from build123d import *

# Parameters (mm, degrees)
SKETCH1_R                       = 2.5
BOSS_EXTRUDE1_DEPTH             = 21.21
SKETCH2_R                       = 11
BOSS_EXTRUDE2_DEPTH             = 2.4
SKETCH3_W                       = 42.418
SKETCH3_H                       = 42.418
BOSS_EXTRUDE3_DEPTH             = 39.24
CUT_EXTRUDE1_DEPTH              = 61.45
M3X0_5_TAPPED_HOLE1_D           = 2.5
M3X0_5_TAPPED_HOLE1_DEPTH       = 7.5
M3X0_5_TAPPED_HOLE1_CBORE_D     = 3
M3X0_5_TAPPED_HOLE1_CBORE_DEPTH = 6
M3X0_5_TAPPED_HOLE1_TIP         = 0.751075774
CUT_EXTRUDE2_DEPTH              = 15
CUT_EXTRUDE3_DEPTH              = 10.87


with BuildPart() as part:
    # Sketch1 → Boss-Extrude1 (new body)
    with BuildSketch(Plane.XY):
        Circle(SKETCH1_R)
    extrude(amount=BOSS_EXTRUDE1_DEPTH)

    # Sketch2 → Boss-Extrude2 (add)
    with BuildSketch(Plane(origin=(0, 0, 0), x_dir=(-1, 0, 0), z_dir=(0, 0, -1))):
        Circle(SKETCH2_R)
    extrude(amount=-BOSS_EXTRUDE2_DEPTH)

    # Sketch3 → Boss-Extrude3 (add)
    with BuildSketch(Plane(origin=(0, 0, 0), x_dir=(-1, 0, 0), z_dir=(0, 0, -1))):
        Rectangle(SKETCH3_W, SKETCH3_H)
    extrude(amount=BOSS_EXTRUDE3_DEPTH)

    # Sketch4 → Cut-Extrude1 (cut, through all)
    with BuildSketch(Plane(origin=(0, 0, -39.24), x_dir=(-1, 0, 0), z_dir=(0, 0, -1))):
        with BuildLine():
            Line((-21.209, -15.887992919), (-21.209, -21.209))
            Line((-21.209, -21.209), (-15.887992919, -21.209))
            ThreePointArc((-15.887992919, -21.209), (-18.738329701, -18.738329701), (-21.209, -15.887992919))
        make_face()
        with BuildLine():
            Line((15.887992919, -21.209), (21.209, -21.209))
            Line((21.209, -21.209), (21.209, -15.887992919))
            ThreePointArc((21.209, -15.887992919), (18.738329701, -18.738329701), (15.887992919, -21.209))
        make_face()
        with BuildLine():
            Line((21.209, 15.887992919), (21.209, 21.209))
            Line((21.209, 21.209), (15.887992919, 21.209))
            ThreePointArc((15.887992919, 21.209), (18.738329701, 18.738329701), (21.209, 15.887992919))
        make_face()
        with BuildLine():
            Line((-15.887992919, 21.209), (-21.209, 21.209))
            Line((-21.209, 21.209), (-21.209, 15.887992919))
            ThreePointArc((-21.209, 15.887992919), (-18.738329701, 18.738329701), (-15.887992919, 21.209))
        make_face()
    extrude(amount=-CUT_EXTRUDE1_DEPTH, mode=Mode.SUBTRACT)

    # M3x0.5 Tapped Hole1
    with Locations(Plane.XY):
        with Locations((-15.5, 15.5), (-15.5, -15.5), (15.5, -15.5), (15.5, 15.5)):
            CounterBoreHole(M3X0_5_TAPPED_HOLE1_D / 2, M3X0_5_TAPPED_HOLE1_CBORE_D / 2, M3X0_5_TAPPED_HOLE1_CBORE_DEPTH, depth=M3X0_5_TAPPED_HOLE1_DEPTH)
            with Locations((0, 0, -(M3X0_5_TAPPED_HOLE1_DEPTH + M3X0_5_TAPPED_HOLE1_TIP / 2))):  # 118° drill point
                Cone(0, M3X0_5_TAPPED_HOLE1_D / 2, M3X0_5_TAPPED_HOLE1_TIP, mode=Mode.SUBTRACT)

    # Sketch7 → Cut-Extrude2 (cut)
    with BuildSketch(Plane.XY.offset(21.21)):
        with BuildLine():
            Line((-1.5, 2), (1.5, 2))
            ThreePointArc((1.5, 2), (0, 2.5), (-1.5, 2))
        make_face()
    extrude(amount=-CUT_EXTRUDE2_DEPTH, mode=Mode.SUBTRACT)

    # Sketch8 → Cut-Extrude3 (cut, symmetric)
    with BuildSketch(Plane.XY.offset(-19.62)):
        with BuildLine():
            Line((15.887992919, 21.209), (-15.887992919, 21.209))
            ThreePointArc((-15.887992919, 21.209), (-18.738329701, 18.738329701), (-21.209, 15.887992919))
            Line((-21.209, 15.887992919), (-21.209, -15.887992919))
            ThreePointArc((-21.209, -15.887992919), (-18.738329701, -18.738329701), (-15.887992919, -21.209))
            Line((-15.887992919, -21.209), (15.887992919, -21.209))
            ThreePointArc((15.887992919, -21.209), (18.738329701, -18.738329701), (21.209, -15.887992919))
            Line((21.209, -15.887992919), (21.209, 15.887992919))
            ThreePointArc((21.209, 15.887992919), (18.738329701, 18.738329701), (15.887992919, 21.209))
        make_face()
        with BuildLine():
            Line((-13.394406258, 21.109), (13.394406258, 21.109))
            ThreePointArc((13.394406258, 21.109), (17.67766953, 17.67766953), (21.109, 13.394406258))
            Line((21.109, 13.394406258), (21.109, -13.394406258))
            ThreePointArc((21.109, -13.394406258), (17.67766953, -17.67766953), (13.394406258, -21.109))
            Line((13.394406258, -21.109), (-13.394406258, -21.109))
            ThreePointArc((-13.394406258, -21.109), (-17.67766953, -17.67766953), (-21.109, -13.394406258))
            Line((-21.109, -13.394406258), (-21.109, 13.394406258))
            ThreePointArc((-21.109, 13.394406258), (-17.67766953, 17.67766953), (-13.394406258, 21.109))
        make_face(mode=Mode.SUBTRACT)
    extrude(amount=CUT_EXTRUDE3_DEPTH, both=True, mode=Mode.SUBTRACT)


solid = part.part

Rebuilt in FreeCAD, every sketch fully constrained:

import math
import FreeCAD as App
import Part
import Sketcher

V = App.Vector

doc = App.newDocument("Part")
body = doc.addObject("PartDesign::Body", "Body")

# Sketch on XY plane
sketch1 = doc.addObject("Sketcher::SketchObject", "Sketch")
body.addObject(sketch1)
sketch1.AttachmentSupport = (doc.XY_Plane, [""])
sketch1.MapMode = "FlatFace"
sketch1.addGeometry(Part.Circle(V(0, 0, 0), V(0, 0, 1), 2.5), False)
sketch1.addConstraint(Sketcher.Constraint("Coincident", 0, 3, -1, 1))
sketch1.addConstraint(Sketcher.Constraint("Diameter", 0, 5.0))
pad1 = doc.addObject("PartDesign::Pad", "Pad")
body.addObject(pad1)
pad1.Profile = sketch1
pad1.Length = 21.21

# Sketch on XY plane
sketch2 = doc.addObject("Sketcher::SketchObject", "Sketch001")
body.addObject(sketch2)
sketch2.AttachmentSupport = (doc.XY_Plane, [""])
sketch2.MapMode = "FlatFace"
sketch2.addGeometry(Part.Circle(V(0, 0, 0), V(0, 0, 1), 11), False)
sketch2.addConstraint(Sketcher.Constraint("Coincident", 0, 3, -1, 1))
sketch2.addConstraint(Sketcher.Constraint("Diameter", 0, 22.0))
pad2 = doc.addObject("PartDesign::Pad", "Pad001")
body.addObject(pad2)
pad2.Profile = sketch2
pad2.Length = 2.4

# Sketch on XY plane
sketch3 = doc.addObject("Sketcher::SketchObject", "Sketch002")
body.addObject(sketch3)
sketch3.AttachmentSupport = (doc.XY_Plane, [""])
sketch3.MapMode = "FlatFace"
sketch3.addGeometry(Part.LineSegment(V(21, 21, 0), V(21, -21, 0)), False)
sketch3.addGeometry(Part.LineSegment(V(21, -21, 0), V(-21, -21, 0)), False)
sketch3.addGeometry(Part.LineSegment(V(-21, -21, 0), V(-21, 21, 0)), False)
sketch3.addGeometry(Part.LineSegment(V(-21, 21, 0), V(21, 21, 0)), False)
sketch3.addConstraint(Sketcher.Constraint("Coincident", 0, 2, 1, 1))
sketch3.addConstraint(Sketcher.Constraint("Coincident", 1, 2, 2, 1))
sketch3.addConstraint(Sketcher.Constraint("Coincident", 2, 2, 3, 1))
sketch3.addConstraint(Sketcher.Constraint("Coincident", 3, 2, 0, 1))
sketch3.addConstraint(Sketcher.Constraint("Vertical", 0))
sketch3.addConstraint(Sketcher.Constraint("Horizontal", 1))
sketch3.addConstraint(Sketcher.Constraint("Vertical", 2))
sketch3.addConstraint(Sketcher.Constraint("Horizontal", 3))
sketch3.addConstraint(Sketcher.Constraint("Symmetric", 0, 2, 2, 2, -1, 1))
sketch3.addConstraint(Sketcher.Constraint("Equal", 3, 0))
sketch3.addConstraint(Sketcher.Constraint("DistanceX", 1, 2, 1, 1, 42.418))
pad3 = doc.addObject("PartDesign::Pad", "Pad002")
body.addObject(pad3)
pad3.Profile = sketch3
pad3.Length = 39.24
pad3.Reversed = True

# Sketch on XY plane
sketch4 = doc.addObject("Sketcher::SketchObject", "Sketch003")
body.addObject(sketch4)
sketch4.AttachmentSupport = (doc.XY_Plane, [""])
sketch4.MapMode = "FlatFace"
sketch4.AttachmentOffset = App.Placement(V(0, 0, -39.24), App.Rotation())
sketch4.addGeometry(Part.LineSegment(V(21, -16, 0), V(21, -21, 0)), False)
sketch4.addGeometry(Part.LineSegment(V(21, -21, 0), V(16, -21, 0)), False)
sketch4.addGeometry(Part.ArcOfCircle(Part.Circle(V(0, 0, 0), V(0, 0, 1), 27), math.radians(-53.16), math.radians(-36.84)), False)
sketch4.addGeometry(Part.LineSegment(V(-16, -21, 0), V(-21, -21, 0)), False)
sketch4.addGeometry(Part.LineSegment(V(-21, -21, 0), V(-21, -16, 0)), False)
sketch4.addGeometry(Part.ArcOfCircle(Part.Circle(V(0, 0, 0), V(0, 0, 1), 27), math.radians(-143.16), math.radians(-126.84)), False)
sketch4.addGeometry(Part.LineSegment(V(-21, 16, 0), V(-21, 21, 0)), False)
sketch4.addGeometry(Part.LineSegment(V(-21, 21, 0), V(-16, 21, 0)), False)
sketch4.addGeometry(Part.ArcOfCircle(Part.Circle(V(0, 0, 0), V(0, 0, 1), 27), math.radians(126.84), math.radians(143.16)), False)
sketch4.addGeometry(Part.LineSegment(V(16, 21, 0), V(21, 21, 0)), False)
sketch4.addGeometry(Part.LineSegment(V(21, 21, 0), V(21, 16, 0)), False)
sketch4.addGeometry(Part.ArcOfCircle(Part.Circle(V(0, 0, 0), V(0, 0, 1), 27), math.radians(36.84), math.radians(53.16)), False)
sketch4.addConstraint(Sketcher.Constraint("Coincident", 0, 2, 1, 1))
sketch4.addConstraint(Sketcher.Constraint("Coincident", 1, 2, 2, 1))
sketch4.addConstraint(Sketcher.Constraint("Coincident", 2, 2, 0, 1))
sketch4.addConstraint(Sketcher.Constraint("Coincident", 3, 2, 4, 1))
sketch4.addConstraint(Sketcher.Constraint("Coincident", 4, 2, 5, 1))
sketch4.addConstraint(Sketcher.Constraint("Coincident", 5, 2, 3, 1))
sketch4.addConstraint(Sketcher.Constraint("Coincident", 6, 2, 7, 1))
sketch4.addConstraint(Sketcher.Constraint("Coincident", 7, 2, 8, 1))
sketch4.addConstraint(Sketcher.Constraint("Coincident", 8, 2, 6, 1))
sketch4.addConstraint(Sketcher.Constraint("Coincident", 9, 2, 10, 1))
sketch4.addConstraint(Sketcher.Constraint("Coincident", 10, 2, 11, 1))
sketch4.addConstraint(Sketcher.Constraint("Coincident", 11, 2, 9, 1))
sketch4.addConstraint(Sketcher.Constraint("Vertical", 0))
sketch4.addConstraint(Sketcher.Constraint("Horizontal", 1))
sketch4.addConstraint(Sketcher.Constraint("Horizontal", 3))
sketch4.addConstraint(Sketcher.Constraint("Vertical", 4))
sketch4.addConstraint(Sketcher.Constraint("Vertical", 6))
sketch4.addConstraint(Sketcher.Constraint("Horizontal", 7))
sketch4.addConstraint(Sketcher.Constraint("Horizontal", 9))
sketch4.addConstraint(Sketcher.Constraint("Vertical", 10))
sketch4.addConstraint(Sketcher.Constraint("Coincident", 2, 3, -1, 1))
sketch4.addConstraint(Sketcher.Constraint("Coincident", 5, 3, -1, 1))
sketch4.addConstraint(Sketcher.Constraint("Coincident", 8, 3, -1, 1))
sketch4.addConstraint(Sketcher.Constraint("Coincident", 11, 3, -1, 1))
sketch4.addConstraint(Sketcher.Constraint("Equal", 2, 5))
sketch4.addConstraint(Sketcher.Constraint("Equal", 5, 8))
sketch4.addConstraint(Sketcher.Constraint("Equal", 8, 11))
sketch4.addConstraint(Sketcher.Constraint("Symmetric", 0, 2, 6, 2, -1, 1))
sketch4.addConstraint(Sketcher.Constraint("Symmetric", 3, 2, 9, 2, -1, 1))
sketch4.addConstraint(Sketcher.Constraint("Symmetric", 0, 2, 3, 2, -2))
sketch4.addConstraint(Sketcher.Constraint("Equal", 9, 0))
sketch4.addConstraint(Sketcher.Constraint("Radius", 2, 26.5))
sketch4.addConstraint(Sketcher.Constraint("DistanceX", -1, 1, 0, 2, 21.209))
pocket1 = doc.addObject("PartDesign::Pocket", "Pocket")
body.addObject(pocket1)
pocket1.Profile = sketch4
pocket1.Type = "ThroughAll"
pocket1.Reversed = True

# Sketch on XY plane
sketch5 = doc.addObject("Sketcher::SketchObject", "Sketch004")
body.addObject(sketch5)
sketch5.AttachmentSupport = (doc.XY_Plane, [""])
sketch5.MapMode = "FlatFace"
sketch5.addGeometry(Part.Circle(V(-15.5, 15.5, 0), V(0, 0, 1), 1.2), False)
sketch5.addGeometry(Part.Circle(V(-15.5, -15.5, 0), V(0, 0, 1), 1.2), False)
sketch5.addGeometry(Part.Circle(V(15.5, -15.5, 0), V(0, 0, 1), 1.2), False)
sketch5.addGeometry(Part.Circle(V(15.5, 15.5, 0), V(0, 0, 1), 1.2), False)
sketch5.addConstraint(Sketcher.Constraint("Equal", 0, 1))
sketch5.addConstraint(Sketcher.Constraint("Equal", 1, 2))
sketch5.addConstraint(Sketcher.Constraint("Equal", 2, 3))
sketch5.addConstraint(Sketcher.Constraint("Symmetric", 0, 3, 2, 3, -1, 1))
sketch5.addConstraint(Sketcher.Constraint("Symmetric", 1, 3, 3, 3, -1, 1))
sketch5.addConstraint(Sketcher.Constraint("Symmetric", 1, 3, 2, 3, -2))
sketch5.addConstraint(Sketcher.Constraint("Diameter", 0, 2.5))
sketch5.addConstraint(Sketcher.Constraint("DistanceY", 1, 3, 0, 3, 31.0))
sketch5.addConstraint(Sketcher.Constraint("DistanceX", 1, 3, 2, 3, 31.0))
doc.recompute()
hole = doc.addObject("PartDesign::Hole", "Hole")
body.addObject(hole)
hole.Profile = sketch5
hole.ThreadType = "None"
hole.Diameter = 2.5
hole.DepthType = "Dimension"
hole.Depth = 7.5
hole.DrillPoint = "Angled"
hole.DrillPointAngle = 118
hole.HoleCutType = "Counterbore"
hole.HoleCutDiameter = 3
hole.HoleCutDepth = 6

# Sketch on XY plane
sketch6 = doc.addObject("Sketcher::SketchObject", "Sketch005")
body.addObject(sketch6)
sketch6.AttachmentSupport = (doc.XY_Plane, [""])
sketch6.MapMode = "FlatFace"
sketch6.AttachmentOffset = App.Placement(V(0, 0, 21.21), App.Rotation())
sketch6.addGeometry(Part.LineSegment(V(-1.5, 2, 0), V(1.5, 2, 0)), False)
sketch6.addGeometry(Part.ArcOfCircle(Part.Circle(V(0, 0, 0), V(0, 0, 1), 2.5), math.radians(53), math.radians(127)), False)
sketch6.addConstraint(Sketcher.Constraint("Coincident", 0, 1, 1, 2))
sketch6.addConstraint(Sketcher.Constraint("Coincident", 1, 1, 0, 2))
sketch6.addConstraint(Sketcher.Constraint("Horizontal", 0))
sketch6.addConstraint(Sketcher.Constraint("Coincident", 1, 3, -1, 1))
sketch6.addConstraint(Sketcher.Constraint("Radius", 1, 2.5))
sketch6.addConstraint(Sketcher.Constraint("DistanceX", 0, 1, 0, 2, 3.0))
pocket2 = doc.addObject("PartDesign::Pocket", "Pocket001")
body.addObject(pocket2)
pocket2.Profile = sketch6
pocket2.Length = 15

# Sketch on XY plane
sketch7 = doc.addObject("Sketcher::SketchObject", "Sketch006")
body.addObject(sketch7)
sketch7.AttachmentSupport = (doc.XY_Plane, [""])
sketch7.MapMode = "FlatFace"
sketch7.AttachmentOffset = App.Placement(V(0, 0, -19.62), App.Rotation())
sketch7.addGeometry(Part.LineSegment(V(16, 21, 0), V(-16, 21, 0)), False)
sketch7.addGeometry(Part.ArcOfCircle(Part.Circle(V(0, 0, 0), V(0, 0, 1), 27), math.radians(126.84), math.radians(143.16)), False)
sketch7.addGeometry(Part.LineSegment(V(-21, 16, 0), V(-21, -16, 0)), False)
sketch7.addGeometry(Part.ArcOfCircle(Part.Circle(V(0, 0, 0), V(0, 0, 1), 27), math.radians(-143.16), math.radians(-126.84)), False)
sketch7.addGeometry(Part.LineSegment(V(-16, -21, 0), V(16, -21, 0)), False)
sketch7.addGeometry(Part.ArcOfCircle(Part.Circle(V(0, 0, 0), V(0, 0, 1), 27), math.radians(-53.16), math.radians(-36.84)), False)
sketch7.addGeometry(Part.LineSegment(V(21, -16, 0), V(21, 16, 0)), False)
sketch7.addGeometry(Part.ArcOfCircle(Part.Circle(V(0, 0, 0), V(0, 0, 1), 27), math.radians(36.84), math.radians(53.16)), False)
sketch7.addGeometry(Part.ArcOfCircle(Part.Circle(V(0, 0, 0), V(0, 0, 1), 25), math.radians(122), math.radians(148)), False)
sketch7.addGeometry(Part.LineSegment(V(-13, 21, 0), V(13, 21, 0)), False)
sketch7.addGeometry(Part.ArcOfCircle(Part.Circle(V(0, 0, 0), V(0, 0, 1), 25), math.radians(32), math.radians(58)), False)
sketch7.addGeometry(Part.LineSegment(V(21, 13, 0), V(21, -13, 0)), False)
sketch7.addGeometry(Part.ArcOfCircle(Part.Circle(V(0, 0, 0), V(0, 0, 1), 25), math.radians(-58), math.radians(-32)), False)
sketch7.addGeometry(Part.LineSegment(V(13, -21, 0), V(-13, -21, 0)), False)
sketch7.addGeometry(Part.ArcOfCircle(Part.Circle(V(0, 0, 0), V(0, 0, 1), 25), math.radians(-148), math.radians(-122)), False)
sketch7.addGeometry(Part.LineSegment(V(-21, -13, 0), V(-21, 13, 0)), False)
sketch7.addConstraint(Sketcher.Constraint("Coincident", 0, 2, 1, 1))
sketch7.addConstraint(Sketcher.Constraint("Coincident", 1, 2, 2, 1))
sketch7.addConstraint(Sketcher.Constraint("Coincident", 2, 2, 3, 1))
sketch7.addConstraint(Sketcher.Constraint("Coincident", 3, 2, 4, 1))
sketch7.addConstraint(Sketcher.Constraint("Coincident", 4, 2, 5, 1))
sketch7.addConstraint(Sketcher.Constraint("Coincident", 5, 2, 6, 1))
sketch7.addConstraint(Sketcher.Constraint("Coincident", 6, 2, 7, 1))
sketch7.addConstraint(Sketcher.Constraint("Coincident", 7, 2, 0, 1))
sketch7.addConstraint(Sketcher.Constraint("Coincident", 8, 1, 9, 1))
sketch7.addConstraint(Sketcher.Constraint("Coincident", 9, 2, 10, 2))
sketch7.addConstraint(Sketcher.Constraint("Coincident", 10, 1, 11, 1))
sketch7.addConstraint(Sketcher.Constraint("Coincident", 11, 2, 12, 2))
sketch7.addConstraint(Sketcher.Constraint("Coincident", 12, 1, 13, 1))
sketch7.addConstraint(Sketcher.Constraint("Coincident", 13, 2, 14, 2))
sketch7.addConstraint(Sketcher.Constraint("Coincident", 14, 1, 15, 1))
sketch7.addConstraint(Sketcher.Constraint("Coincident", 15, 2, 8, 2))
sketch7.addConstraint(Sketcher.Constraint("Horizontal", 0))
sketch7.addConstraint(Sketcher.Constraint("Vertical", 2))
sketch7.addConstraint(Sketcher.Constraint("Horizontal", 4))
sketch7.addConstraint(Sketcher.Constraint("Vertical", 6))
sketch7.addConstraint(Sketcher.Constraint("Horizontal", 9))
sketch7.addConstraint(Sketcher.Constraint("Vertical", 11))
sketch7.addConstraint(Sketcher.Constraint("Horizontal", 13))
sketch7.addConstraint(Sketcher.Constraint("Vertical", 15))
sketch7.addConstraint(Sketcher.Constraint("Coincident", 1, 3, -1, 1))
sketch7.addConstraint(Sketcher.Constraint("Coincident", 3, 3, -1, 1))
sketch7.addConstraint(Sketcher.Constraint("Coincident", 5, 3, -1, 1))
sketch7.addConstraint(Sketcher.Constraint("Coincident", 7, 3, -1, 1))
sketch7.addConstraint(Sketcher.Constraint("Coincident", 8, 3, -1, 1))
sketch7.addConstraint(Sketcher.Constraint("Coincident", 10, 3, -1, 1))
sketch7.addConstraint(Sketcher.Constraint("Coincident", 12, 3, -1, 1))
sketch7.addConstraint(Sketcher.Constraint("Coincident", 14, 3, -1, 1))
sketch7.addConstraint(Sketcher.Constraint("Equal", 1, 3))
sketch7.addConstraint(Sketcher.Constraint("Equal", 3, 5))
sketch7.addConstraint(Sketcher.Constraint("Equal", 5, 7))
sketch7.addConstraint(Sketcher.Constraint("Equal", 8, 10))
sketch7.addConstraint(Sketcher.Constraint("Equal", 10, 12))
sketch7.addConstraint(Sketcher.Constraint("Equal", 12, 14))
sketch7.addConstraint(Sketcher.Constraint("Horizontal", 2, 2, 5, 2))
sketch7.addConstraint(Sketcher.Constraint("Horizontal", 11, 2, 14, 1))
sketch7.addConstraint(Sketcher.Constraint("Vertical", 0, 2, 3, 2))
sketch7.addConstraint(Sketcher.Constraint("Vertical", 9, 2, 12, 1))
sketch7.addConstraint(Sketcher.Constraint("Equal", 4, 2))
sketch7.addConstraint(Sketcher.Constraint("Equal", 13, 11))
sketch7.addConstraint(Sketcher.Constraint("Radius", 8, 25.0))
sketch7.addConstraint(Sketcher.Constraint("Radius", 1, 26.5))
sketch7.addConstraint(Sketcher.Constraint("DistanceY", 8, 1, 0, 2, 0.1))
sketch7.addConstraint(Sketcher.Constraint("DistanceY", -1, 1, 0, 2, 21.209))
pocket3 = doc.addObject("PartDesign::Pocket", "Pocket002")
body.addObject(pocket3)
pocket3.Profile = sketch7
pocket3.Length = 21.74
pocket3.Midplane = True

doc.recompute()
